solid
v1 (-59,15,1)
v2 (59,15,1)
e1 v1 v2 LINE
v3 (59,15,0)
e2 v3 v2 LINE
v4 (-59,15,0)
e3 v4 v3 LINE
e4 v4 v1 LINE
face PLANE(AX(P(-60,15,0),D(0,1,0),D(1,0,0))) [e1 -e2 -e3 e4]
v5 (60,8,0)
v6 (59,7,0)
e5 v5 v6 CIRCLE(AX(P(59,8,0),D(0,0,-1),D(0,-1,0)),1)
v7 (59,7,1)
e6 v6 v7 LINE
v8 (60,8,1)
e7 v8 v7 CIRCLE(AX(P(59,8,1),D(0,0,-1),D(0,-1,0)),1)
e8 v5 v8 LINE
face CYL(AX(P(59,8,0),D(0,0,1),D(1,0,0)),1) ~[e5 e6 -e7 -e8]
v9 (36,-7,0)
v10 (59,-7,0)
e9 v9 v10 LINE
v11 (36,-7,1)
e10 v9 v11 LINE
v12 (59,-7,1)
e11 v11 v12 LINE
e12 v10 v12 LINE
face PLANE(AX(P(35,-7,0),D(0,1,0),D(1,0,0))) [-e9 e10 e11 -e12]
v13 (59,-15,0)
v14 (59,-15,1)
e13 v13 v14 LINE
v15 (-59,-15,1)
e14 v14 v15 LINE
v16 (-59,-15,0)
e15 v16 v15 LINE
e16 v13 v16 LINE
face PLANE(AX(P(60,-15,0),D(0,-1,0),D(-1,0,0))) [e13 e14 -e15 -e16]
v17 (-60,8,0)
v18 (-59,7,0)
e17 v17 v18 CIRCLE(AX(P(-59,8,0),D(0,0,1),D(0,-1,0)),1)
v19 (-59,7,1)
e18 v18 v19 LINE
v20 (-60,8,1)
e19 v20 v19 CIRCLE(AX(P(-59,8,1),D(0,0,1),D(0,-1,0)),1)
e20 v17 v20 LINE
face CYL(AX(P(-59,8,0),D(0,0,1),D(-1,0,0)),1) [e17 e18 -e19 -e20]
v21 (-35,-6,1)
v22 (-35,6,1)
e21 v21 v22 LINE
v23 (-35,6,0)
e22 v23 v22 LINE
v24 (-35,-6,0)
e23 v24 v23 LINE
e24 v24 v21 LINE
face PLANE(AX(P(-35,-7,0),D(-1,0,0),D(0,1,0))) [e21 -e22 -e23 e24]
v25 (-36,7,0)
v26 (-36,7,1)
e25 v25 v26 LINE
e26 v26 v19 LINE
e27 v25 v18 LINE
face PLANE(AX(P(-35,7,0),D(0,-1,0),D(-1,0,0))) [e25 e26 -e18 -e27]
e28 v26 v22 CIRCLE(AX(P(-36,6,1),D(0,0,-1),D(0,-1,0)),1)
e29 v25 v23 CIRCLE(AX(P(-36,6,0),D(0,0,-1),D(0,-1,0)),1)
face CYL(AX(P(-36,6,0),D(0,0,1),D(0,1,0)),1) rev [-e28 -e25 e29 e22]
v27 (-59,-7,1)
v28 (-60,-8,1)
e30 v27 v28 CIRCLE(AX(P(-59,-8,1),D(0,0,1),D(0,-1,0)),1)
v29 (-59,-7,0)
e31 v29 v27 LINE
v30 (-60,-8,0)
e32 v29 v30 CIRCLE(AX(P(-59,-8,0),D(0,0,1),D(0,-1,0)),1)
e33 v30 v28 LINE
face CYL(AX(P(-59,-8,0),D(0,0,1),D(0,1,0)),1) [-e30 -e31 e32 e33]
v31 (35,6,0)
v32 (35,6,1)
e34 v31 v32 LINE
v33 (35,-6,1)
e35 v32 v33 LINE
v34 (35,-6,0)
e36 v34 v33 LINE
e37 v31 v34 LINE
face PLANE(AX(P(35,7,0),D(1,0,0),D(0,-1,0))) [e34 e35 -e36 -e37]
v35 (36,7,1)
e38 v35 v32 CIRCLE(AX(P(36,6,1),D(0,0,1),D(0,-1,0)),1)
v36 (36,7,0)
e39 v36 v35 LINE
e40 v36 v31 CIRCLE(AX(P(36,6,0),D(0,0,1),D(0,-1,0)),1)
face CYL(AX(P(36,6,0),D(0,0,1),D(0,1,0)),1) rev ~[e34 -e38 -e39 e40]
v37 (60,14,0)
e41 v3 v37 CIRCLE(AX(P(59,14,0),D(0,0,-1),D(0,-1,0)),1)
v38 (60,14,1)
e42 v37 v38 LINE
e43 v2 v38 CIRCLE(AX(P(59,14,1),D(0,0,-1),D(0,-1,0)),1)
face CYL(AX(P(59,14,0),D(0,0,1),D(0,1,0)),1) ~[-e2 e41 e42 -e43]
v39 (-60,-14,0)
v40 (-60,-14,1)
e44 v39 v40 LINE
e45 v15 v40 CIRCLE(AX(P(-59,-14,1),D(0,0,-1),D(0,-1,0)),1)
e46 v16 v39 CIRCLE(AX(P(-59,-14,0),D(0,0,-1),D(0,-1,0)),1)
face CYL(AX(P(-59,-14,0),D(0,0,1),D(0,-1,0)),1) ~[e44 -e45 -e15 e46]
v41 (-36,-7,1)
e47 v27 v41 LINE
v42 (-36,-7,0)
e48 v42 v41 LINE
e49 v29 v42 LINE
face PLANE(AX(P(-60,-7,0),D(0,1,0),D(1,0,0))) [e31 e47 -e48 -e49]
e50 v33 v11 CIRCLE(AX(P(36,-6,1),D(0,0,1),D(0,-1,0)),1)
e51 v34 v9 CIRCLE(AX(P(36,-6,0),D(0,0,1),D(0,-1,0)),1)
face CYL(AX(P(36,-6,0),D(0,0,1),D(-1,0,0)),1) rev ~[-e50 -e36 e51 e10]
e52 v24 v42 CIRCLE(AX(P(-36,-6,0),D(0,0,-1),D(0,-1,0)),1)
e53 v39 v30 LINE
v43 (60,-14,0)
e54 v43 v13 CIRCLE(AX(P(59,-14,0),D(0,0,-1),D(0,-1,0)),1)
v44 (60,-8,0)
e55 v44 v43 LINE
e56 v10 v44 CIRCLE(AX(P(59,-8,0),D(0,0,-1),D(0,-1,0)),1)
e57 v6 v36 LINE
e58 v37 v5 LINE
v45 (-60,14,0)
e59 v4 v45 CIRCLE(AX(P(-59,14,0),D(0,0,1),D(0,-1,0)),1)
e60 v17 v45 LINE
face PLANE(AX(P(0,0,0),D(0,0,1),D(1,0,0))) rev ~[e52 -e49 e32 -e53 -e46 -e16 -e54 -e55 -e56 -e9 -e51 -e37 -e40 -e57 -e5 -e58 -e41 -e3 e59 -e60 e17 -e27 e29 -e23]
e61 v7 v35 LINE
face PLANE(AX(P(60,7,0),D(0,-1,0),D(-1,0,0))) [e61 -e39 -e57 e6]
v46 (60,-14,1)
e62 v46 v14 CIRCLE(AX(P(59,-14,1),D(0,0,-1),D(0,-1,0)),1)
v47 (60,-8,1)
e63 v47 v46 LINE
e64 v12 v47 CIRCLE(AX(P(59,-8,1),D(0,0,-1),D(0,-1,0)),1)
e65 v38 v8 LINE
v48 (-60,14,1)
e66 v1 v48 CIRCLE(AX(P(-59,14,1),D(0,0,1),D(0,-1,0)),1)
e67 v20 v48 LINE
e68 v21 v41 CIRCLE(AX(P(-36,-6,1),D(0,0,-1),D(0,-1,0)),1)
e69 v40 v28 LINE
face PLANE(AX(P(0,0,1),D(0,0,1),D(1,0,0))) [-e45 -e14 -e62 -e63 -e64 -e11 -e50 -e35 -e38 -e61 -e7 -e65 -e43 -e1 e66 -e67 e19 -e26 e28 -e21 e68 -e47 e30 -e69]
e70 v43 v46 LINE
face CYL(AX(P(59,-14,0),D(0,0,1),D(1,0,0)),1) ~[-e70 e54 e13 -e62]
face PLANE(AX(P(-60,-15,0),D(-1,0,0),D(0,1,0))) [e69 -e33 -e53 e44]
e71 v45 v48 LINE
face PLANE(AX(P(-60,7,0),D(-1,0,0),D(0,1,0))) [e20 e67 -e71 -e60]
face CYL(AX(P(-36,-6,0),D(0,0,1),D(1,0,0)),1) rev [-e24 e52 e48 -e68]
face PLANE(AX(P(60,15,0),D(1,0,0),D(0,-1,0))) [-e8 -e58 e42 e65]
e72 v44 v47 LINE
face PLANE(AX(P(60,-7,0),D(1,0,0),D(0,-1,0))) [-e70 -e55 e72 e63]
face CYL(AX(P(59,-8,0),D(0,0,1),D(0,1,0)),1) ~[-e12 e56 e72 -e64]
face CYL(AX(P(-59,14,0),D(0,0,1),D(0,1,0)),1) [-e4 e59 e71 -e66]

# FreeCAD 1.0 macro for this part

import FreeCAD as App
import Part
import Sketcher

V = App.Vector


def edges_at(feature, points):
    """Names of the edges that pass closest to the given points."""
    edges = feature.Shape.Edges
    near = lambda p: min(range(len(edges)), key=lambda i: edges[i].distToShape(Part.Vertex(*p))[0])
    return sorted({f"Edge{near(p) + 1}" for p in points})


def add_polygon(sketch, points):
    """Adds a closed chain of lines whose ends are joined by coincident constraints."""
    first, n = sketch.GeometryCount, len(points)
    for a, b in zip(points, points[1:] + points[:1]):
        sketch.addGeometry(Part.LineSegment(App.Vector(*a, 0), App.Vector(*b, 0)), False)
    for i in range(n):
        sketch.addConstraint(Sketcher.Constraint("Coincident", first + i, 2, first + (i + 1) % n, 1))

doc = App.newDocument("Part")
params = doc.addObject("Spreadsheet::Sheet", "Params")
for row, (alias, value) in enumerate([
    ("sketch1_width", "120 mm"),
    ("sketch1_width2", "25 mm"),
    ("sketch1_height", "8 mm"),
    ("pad1_length", "1 mm"),
    ("fillet_radius", "1 mm"),
], start=1):
    params.set(f"A{row}", alias)
    params.set(f"B{row}", "=" + value)
    params.setAlias(f"B{row}", alias)

body = doc.addObject("PartDesign::Body", "Body")

# Sketch on XY plane
sketch1 = body.newObject("Sketcher::SketchObject", "Sketch")
sketch1.AttachmentSupport = (doc.getObject("XY_Plane"), [""])
sketch1.MapMode = "FlatFace"
add_polygon(sketch1, [(60, 15), (-60, 15), (-60, 7), (-35, 7), (-35, -7), (-60, -7), (-60, -15), (60, -15), (60, -7), (35, -7), (35, 7), (60, 7)])  # lines 0-11
sketch1.addConstraint([
    Sketcher.Constraint("Horizontal", 0),
    Sketcher.Constraint("Vertical", 1),
    Sketcher.Constraint("Horizontal", 2),
    Sketcher.Constraint("Vertical", 3),
    Sketcher.Constraint("Horizontal", 4),
    Sketcher.Constraint("Vertical", 5),
    Sketcher.Constraint("Horizontal", 6),
    Sketcher.Constraint("Vertical", 7),
    Sketcher.Constraint("Horizontal", 8),
    Sketcher.Constraint("Vertical", 9),
    Sketcher.Constraint("Horizontal", 10),
    Sketcher.Constraint("Vertical", 11),
    Sketcher.Constraint("Symmetric", 0, 2, 6, 2, -1, 1),
    Sketcher.Constraint("Symmetric", 2, 2, 8, 2, -1, 1),
    Sketcher.Constraint("Symmetric", 4, 2, 10, 2, -1, 1),
    Sketcher.Constraint("Symmetric", 4, 2, 7, 2, -2),
    Sketcher.Constraint("DistanceX", 0, 2, 0, 1, 120.0),
    Sketcher.Constraint("DistanceX", 2, 1, 2, 2, 25.0),
    Sketcher.Constraint("DistanceY", 1, 2, 1, 1, 8.0),
    Sketcher.Constraint("DistanceY", -1, 1, 0, 2, 15.0),
])
sketch1.setExpression("Constraints[28]", "Params.sketch1_width")
sketch1.setExpression("Constraints[29]", "Params.sketch1_width2")
sketch1.setExpression("Constraints[30]", "Params.sketch1_height")
pad1 = body.newObject("PartDesign::Pad", "Pad")
pad1.Profile = sketch1
pad1.setExpression("Length", "Params.pad1_length")
doc.recompute()

fillet = body.newObject("PartDesign::Fillet", "Fillet")
fillet.Base = (pad1, edges_at(pad1, [
    (-60, 15, 0.5),
    (-60, 7, 0.5),
    (-60, -7, 0.5),
    (-60, -15, 0.5),
    (-35, 7, 0.5),
    (-35, -7, 0.5),
    (60, -15, 0.5),
    (60, -7, 0.5),
    (35, 7, 0.5),
    (35, -7, 0.5),
    (60, 7, 0.5),
    (60, 15, 0.5),
]))
fillet.setExpression("Radius", "Params.fillet_radius")

doc.recompute()
